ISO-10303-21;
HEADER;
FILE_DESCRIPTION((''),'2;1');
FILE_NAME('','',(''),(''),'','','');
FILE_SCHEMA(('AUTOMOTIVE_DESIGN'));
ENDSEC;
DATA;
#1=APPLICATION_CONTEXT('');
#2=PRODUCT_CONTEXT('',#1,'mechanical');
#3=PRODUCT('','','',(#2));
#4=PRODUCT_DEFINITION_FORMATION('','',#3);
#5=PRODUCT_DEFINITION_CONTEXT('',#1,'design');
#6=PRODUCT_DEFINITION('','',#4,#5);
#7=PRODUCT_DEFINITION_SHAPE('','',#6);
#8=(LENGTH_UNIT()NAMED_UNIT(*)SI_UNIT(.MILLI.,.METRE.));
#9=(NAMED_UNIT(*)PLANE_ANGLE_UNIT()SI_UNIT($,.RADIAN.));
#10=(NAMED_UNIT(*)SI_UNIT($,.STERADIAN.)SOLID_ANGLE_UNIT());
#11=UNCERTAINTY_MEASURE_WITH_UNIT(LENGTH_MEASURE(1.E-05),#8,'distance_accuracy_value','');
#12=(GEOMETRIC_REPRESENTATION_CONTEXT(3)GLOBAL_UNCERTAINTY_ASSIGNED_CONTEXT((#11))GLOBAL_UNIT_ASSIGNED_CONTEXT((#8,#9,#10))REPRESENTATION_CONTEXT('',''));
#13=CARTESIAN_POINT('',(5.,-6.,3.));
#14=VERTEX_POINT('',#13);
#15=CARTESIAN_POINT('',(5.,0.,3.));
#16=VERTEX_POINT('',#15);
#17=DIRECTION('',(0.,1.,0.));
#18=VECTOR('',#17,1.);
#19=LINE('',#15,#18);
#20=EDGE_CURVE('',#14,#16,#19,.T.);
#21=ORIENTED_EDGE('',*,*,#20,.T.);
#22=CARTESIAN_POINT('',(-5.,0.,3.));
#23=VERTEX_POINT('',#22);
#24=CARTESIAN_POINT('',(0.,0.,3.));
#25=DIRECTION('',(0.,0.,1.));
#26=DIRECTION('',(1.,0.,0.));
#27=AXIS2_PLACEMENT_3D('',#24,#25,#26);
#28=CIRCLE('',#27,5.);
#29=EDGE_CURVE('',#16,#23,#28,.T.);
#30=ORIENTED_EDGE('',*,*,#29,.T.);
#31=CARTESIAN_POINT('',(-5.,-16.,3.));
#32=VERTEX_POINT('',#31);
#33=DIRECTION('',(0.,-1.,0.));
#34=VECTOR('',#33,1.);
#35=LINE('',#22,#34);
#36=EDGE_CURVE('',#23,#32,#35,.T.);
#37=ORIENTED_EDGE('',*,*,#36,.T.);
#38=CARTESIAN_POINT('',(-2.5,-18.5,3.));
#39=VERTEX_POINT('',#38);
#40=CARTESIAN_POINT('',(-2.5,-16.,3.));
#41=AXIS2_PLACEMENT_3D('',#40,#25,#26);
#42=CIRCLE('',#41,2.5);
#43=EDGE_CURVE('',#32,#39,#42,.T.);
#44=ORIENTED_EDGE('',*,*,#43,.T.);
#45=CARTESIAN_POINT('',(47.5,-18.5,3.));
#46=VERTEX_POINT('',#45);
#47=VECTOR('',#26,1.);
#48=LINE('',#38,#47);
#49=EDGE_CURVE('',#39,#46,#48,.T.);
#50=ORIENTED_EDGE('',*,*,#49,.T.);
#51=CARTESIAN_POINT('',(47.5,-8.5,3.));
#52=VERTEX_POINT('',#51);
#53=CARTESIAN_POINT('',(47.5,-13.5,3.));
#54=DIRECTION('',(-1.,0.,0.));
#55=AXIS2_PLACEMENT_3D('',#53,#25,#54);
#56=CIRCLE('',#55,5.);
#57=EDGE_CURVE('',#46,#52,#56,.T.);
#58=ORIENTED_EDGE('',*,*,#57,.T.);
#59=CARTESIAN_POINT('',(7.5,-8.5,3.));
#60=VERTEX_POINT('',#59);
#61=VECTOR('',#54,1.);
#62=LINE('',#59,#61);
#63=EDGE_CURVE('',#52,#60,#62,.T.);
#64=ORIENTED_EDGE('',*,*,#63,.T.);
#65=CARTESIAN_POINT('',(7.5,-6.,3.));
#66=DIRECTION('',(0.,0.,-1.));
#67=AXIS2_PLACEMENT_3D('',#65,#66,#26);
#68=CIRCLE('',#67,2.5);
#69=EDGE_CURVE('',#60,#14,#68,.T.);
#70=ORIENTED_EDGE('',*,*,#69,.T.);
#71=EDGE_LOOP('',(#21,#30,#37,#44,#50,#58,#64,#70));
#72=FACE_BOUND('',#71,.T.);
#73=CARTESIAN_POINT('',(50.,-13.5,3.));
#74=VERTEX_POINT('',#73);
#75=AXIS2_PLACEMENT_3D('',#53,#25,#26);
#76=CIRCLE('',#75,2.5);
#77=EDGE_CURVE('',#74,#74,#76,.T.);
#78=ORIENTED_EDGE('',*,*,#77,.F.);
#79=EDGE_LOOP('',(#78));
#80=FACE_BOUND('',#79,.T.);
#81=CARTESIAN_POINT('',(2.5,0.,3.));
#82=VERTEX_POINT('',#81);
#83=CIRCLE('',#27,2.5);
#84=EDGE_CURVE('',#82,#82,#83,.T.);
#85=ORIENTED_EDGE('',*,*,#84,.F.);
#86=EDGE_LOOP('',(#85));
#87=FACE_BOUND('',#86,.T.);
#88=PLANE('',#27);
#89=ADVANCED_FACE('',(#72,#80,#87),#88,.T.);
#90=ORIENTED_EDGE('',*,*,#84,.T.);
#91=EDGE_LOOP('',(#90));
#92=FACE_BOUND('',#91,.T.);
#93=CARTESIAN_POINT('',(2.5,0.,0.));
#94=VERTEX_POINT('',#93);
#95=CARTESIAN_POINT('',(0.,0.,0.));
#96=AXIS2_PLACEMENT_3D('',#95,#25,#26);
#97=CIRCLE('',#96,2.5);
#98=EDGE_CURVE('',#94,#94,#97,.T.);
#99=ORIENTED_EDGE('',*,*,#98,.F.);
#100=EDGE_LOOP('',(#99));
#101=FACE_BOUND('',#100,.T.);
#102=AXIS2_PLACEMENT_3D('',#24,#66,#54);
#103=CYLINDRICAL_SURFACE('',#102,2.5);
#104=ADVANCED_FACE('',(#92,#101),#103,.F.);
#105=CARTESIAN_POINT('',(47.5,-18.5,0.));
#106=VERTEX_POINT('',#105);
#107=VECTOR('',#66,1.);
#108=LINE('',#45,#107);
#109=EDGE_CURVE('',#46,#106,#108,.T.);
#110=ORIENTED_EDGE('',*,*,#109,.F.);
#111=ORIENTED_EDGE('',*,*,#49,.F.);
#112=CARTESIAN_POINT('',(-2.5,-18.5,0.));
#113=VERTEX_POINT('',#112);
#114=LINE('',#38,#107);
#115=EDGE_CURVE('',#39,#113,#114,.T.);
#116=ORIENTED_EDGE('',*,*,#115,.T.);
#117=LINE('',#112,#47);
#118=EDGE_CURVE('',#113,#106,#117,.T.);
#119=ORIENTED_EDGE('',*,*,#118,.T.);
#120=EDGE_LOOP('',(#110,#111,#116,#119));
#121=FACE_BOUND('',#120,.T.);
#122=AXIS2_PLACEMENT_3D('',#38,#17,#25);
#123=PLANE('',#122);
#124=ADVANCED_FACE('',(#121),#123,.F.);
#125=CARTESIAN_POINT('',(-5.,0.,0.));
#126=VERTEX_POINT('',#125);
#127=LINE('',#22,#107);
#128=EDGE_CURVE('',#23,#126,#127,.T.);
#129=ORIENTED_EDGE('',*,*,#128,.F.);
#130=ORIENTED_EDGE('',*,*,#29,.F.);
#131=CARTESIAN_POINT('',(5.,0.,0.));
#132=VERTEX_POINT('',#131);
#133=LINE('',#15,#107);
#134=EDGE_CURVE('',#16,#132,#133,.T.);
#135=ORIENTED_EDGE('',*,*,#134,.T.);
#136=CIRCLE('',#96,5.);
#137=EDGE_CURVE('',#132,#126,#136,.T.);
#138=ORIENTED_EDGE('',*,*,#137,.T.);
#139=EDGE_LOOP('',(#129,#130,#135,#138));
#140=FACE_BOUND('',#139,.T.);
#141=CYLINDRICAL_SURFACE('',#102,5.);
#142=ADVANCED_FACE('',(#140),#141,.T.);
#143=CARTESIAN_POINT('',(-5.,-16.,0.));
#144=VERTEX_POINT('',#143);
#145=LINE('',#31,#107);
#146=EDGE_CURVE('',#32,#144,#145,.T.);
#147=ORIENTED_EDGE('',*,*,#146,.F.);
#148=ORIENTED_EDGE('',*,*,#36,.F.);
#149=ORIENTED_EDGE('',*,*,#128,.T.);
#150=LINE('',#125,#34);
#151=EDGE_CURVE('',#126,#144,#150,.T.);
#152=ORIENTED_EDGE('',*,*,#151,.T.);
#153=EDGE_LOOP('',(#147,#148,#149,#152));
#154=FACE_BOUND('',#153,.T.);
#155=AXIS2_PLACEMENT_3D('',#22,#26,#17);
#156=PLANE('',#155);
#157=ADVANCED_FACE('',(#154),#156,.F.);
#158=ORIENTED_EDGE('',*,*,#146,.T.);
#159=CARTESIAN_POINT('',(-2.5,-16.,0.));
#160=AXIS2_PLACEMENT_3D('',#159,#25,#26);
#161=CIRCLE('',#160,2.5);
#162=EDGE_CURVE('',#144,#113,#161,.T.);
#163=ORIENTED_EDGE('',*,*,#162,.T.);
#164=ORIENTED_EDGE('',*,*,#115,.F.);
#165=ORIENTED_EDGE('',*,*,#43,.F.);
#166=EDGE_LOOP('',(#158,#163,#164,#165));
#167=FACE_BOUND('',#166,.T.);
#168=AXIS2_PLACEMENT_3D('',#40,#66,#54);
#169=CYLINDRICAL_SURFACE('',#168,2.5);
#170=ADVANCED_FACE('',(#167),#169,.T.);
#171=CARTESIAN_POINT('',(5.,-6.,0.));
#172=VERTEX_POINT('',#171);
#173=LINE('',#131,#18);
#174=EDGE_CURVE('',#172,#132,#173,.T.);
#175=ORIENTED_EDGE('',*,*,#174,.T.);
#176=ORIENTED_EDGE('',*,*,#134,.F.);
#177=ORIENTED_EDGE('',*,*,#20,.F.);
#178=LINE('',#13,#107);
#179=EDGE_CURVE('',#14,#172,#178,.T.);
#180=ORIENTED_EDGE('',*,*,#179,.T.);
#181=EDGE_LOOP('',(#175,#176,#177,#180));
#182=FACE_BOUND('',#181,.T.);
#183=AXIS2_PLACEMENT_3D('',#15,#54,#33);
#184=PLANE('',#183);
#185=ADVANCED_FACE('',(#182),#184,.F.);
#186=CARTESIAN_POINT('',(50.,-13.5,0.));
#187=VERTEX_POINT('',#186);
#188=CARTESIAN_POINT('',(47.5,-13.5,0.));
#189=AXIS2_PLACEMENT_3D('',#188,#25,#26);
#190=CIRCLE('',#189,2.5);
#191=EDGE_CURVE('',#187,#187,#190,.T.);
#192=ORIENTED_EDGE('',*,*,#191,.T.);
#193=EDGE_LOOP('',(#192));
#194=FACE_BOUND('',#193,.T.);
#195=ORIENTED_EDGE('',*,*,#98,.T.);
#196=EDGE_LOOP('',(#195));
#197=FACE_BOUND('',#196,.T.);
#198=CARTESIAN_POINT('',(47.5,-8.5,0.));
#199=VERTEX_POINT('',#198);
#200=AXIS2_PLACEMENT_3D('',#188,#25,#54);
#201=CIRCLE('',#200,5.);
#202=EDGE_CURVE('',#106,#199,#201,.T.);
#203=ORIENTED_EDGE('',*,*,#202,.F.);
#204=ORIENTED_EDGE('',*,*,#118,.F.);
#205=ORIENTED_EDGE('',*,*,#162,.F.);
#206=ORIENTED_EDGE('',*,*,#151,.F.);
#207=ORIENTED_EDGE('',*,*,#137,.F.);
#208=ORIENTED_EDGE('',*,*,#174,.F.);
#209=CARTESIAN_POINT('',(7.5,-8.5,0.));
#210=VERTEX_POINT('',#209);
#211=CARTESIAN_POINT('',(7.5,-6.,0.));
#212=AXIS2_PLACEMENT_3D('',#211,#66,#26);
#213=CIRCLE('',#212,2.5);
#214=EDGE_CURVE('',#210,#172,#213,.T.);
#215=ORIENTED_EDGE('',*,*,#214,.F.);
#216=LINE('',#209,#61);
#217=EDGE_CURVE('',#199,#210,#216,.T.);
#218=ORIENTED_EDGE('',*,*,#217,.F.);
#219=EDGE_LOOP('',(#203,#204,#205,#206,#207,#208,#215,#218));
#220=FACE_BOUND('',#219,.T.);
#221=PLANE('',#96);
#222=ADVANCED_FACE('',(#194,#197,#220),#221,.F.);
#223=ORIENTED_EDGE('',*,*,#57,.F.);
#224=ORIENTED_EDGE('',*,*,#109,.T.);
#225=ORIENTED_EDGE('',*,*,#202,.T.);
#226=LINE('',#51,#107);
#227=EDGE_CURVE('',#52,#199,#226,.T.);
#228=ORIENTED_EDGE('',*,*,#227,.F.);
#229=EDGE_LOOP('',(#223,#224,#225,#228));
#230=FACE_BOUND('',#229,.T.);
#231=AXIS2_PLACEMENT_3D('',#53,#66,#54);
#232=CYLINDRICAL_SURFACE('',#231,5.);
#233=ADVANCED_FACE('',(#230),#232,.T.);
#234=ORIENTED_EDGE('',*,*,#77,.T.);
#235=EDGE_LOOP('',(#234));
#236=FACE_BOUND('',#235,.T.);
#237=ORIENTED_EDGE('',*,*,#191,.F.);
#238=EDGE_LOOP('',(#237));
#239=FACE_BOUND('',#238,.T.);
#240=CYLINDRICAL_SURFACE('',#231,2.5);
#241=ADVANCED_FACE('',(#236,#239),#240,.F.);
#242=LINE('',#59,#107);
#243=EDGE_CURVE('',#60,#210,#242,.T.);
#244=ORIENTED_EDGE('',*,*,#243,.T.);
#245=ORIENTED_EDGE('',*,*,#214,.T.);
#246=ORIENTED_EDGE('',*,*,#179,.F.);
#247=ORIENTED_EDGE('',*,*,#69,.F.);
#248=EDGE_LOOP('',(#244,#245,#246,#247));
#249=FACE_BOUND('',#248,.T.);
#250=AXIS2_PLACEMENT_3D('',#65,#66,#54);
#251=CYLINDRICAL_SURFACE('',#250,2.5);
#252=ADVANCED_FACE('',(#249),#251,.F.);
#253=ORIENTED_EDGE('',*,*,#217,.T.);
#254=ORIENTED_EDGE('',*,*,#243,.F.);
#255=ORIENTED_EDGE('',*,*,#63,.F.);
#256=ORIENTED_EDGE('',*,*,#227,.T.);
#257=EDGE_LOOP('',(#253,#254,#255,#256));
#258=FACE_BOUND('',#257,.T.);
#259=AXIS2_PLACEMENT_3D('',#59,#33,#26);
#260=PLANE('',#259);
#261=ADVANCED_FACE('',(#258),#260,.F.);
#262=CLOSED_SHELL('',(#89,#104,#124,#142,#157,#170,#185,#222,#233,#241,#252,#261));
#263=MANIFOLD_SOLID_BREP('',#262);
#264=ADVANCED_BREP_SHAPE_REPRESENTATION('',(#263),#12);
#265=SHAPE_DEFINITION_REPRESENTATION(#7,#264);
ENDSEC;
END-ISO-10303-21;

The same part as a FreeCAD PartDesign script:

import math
import FreeCAD as App
import Part
import Sketcher

V = App.Vector
Q = App.Units.Quantity

doc = App.newDocument("Part")
body = doc.addObject("PartDesign::Body", "Body")

sketch1 = body.newObject("Sketcher::SketchObject", "Sketch")
sketch1.AttachmentSupport = (doc.getObject("XY_Plane"), [""])
sketch1.MapMode = "FlatFace"
sketch1.addGeometry([
    Part.LineSegment(V(5, -6, 0), V(5, 0, 0)),
    Part.ArcOfCircle(Part.Circle(V(0, 0, 0), V(0, 0, 1), 5), math.radians(0), math.radians(180)),
    Part.LineSegment(V(-5, 0, 0), V(-5, -16, 0)),
    Part.ArcOfCircle(Part.Circle(V(-2.5, -16, 0), V(0, 0, 1), 2.5), math.radians(180), math.radians(270)),
    Part.LineSegment(V(-2.5, -18.5, 0), V(47.5, -18.5, 0)),
    Part.ArcOfCircle(Part.Circle(V(47.5, -13.5, 0), V(0, 0, 1), 5), math.radians(-90), math.radians(90)),
    Part.LineSegment(V(47.5, -8.5, 0), V(7.5, -8.5, 0)),
    Part.ArcOfCircle(Part.Circle(V(7.5, -6, 0), V(0, 0, 1), 2.5), math.radians(180), math.radians(270)),
    Part.Circle(V(47.5, -13.5, 0), V(0, 0, 1), 2.5),
    Part.Circle(V(0, 0, 0), V(0, 0, 1), 2.5),
], False)
sketch1.addConstraint([
    Sketcher.Constraint("Tangent", 0, 2, 1, 1),
    Sketcher.Constraint("Tangent", 1, 2, 2, 1),
    Sketcher.Constraint("Tangent", 2, 2, 3, 1),
    Sketcher.Constraint("Tangent", 3, 2, 4, 1),
    Sketcher.Constraint("Tangent", 4, 2, 5, 1),
    Sketcher.Constraint("Tangent", 5, 2, 6, 1),
    Sketcher.Constraint("Tangent", 6, 2, 7, 2),
    Sketcher.Constraint("Tangent", 7, 1, 0, 1),
    Sketcher.Constraint("Vertical", 0),
    Sketcher.Constraint("Vertical", 2),
    Sketcher.Constraint("Horizontal", 4),
    Sketcher.Constraint("Horizontal", 6),
    Sketcher.Constraint("Coincident", 1, 3, -1, 1),
    Sketcher.Constraint("Coincident", 9, 3, -1, 1),
    Sketcher.Constraint("Coincident", 8, 3, 5, 3),
    Sketcher.Constraint("Equal", 1, 5),
    Sketcher.Constraint("Equal", 3, 7),
    Sketcher.Constraint("Equal", 7, 8),
    Sketcher.Constraint("Equal", 8, 9),
    Sketcher.Constraint("Diameter", 8, Q("5 mm")),
    Sketcher.Constraint("Radius", 1, Q("5 mm")),
    Sketcher.Constraint("DistanceX", 4, 1, 4, 2, Q("50 mm")),
    Sketcher.Constraint("DistanceY", 0, 1, 0, 2, Q("6 mm")),
])
pad1 = body.newObject("PartDesign::Pad", "Pad")
pad1.Profile = sketch1
pad1.Length = 3

doc.recompute()
